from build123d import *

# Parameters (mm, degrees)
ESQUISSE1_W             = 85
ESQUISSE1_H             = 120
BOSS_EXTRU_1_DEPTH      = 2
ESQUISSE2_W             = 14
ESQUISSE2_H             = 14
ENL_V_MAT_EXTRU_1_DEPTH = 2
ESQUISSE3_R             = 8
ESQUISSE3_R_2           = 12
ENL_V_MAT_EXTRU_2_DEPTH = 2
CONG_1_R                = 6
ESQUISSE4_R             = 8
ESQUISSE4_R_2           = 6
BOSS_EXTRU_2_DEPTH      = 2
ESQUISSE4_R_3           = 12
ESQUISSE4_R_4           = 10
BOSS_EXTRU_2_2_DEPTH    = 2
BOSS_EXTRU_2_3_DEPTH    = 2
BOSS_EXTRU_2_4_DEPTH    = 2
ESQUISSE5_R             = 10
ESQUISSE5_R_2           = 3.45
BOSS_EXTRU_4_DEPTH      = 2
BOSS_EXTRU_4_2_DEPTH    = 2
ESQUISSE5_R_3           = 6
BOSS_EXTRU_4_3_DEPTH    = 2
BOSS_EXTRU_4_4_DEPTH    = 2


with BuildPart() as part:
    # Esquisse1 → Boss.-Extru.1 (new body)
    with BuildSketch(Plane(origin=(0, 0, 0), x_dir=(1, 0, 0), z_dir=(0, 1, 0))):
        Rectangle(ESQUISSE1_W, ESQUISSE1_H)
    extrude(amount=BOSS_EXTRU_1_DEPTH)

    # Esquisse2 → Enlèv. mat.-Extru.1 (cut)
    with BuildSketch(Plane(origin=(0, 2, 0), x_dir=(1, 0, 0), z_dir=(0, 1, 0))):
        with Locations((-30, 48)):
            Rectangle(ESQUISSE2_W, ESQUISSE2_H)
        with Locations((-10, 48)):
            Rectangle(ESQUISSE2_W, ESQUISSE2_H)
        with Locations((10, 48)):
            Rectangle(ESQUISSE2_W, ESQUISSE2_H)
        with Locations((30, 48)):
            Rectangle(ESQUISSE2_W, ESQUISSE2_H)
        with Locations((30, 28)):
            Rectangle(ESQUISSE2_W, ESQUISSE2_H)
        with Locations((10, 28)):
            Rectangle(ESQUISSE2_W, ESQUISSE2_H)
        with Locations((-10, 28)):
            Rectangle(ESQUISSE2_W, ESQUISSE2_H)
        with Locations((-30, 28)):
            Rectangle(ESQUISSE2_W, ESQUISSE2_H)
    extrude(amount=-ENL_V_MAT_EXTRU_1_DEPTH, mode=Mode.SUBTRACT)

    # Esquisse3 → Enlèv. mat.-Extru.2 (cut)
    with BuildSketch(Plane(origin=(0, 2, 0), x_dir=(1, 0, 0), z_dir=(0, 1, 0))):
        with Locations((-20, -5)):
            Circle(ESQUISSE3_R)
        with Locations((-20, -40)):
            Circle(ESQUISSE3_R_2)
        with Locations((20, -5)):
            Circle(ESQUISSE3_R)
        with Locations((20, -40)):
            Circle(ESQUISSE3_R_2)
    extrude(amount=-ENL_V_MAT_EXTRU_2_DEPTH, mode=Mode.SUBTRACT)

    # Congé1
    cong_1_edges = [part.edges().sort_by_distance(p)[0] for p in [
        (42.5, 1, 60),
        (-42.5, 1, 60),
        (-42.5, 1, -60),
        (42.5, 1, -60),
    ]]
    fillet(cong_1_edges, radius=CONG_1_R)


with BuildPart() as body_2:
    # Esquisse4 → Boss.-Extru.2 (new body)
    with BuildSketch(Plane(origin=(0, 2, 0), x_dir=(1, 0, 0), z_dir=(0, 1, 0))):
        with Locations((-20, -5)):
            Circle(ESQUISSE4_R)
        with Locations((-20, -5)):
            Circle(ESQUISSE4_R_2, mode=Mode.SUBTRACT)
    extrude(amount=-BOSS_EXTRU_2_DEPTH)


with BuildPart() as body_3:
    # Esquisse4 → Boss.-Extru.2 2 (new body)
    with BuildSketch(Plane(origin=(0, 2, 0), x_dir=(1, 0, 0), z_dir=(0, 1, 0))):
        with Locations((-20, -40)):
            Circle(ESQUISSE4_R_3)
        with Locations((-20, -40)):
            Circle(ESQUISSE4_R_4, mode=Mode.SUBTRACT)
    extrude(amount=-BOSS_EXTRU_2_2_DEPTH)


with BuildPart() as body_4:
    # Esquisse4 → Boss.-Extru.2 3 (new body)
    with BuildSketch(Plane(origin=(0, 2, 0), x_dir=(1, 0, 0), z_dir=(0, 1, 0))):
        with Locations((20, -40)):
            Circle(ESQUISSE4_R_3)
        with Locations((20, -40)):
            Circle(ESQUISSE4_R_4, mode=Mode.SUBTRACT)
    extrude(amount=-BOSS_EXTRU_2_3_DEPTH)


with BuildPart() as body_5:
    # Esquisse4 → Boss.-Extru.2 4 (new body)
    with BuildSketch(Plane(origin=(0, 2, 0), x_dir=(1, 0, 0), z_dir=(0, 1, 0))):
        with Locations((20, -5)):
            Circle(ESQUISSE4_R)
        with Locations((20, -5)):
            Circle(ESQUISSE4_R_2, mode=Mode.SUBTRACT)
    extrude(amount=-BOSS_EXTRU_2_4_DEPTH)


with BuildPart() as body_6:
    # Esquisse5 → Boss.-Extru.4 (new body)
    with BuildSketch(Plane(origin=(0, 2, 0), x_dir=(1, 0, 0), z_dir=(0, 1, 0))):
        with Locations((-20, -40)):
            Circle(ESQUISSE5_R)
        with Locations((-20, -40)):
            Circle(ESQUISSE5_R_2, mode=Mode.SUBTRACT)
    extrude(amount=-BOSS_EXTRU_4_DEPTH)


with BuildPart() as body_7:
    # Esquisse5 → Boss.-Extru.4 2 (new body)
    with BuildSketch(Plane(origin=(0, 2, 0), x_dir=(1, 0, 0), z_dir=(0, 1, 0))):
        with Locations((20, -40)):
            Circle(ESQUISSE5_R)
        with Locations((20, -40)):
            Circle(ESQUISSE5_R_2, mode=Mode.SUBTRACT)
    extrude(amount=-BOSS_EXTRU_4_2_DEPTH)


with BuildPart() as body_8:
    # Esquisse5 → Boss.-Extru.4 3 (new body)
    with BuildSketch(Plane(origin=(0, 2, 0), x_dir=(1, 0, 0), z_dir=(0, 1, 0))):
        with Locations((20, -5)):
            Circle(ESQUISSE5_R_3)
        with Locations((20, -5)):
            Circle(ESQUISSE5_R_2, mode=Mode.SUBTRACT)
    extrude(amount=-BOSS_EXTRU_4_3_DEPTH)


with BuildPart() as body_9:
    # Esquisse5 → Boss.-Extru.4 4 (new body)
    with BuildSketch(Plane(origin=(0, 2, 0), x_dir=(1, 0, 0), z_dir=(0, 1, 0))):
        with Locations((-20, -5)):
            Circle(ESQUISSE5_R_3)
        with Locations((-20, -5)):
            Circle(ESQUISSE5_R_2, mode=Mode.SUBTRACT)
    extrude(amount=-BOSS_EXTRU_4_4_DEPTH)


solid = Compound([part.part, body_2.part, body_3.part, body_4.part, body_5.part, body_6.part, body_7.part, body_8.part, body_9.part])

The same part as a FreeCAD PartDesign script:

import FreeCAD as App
import Part
import Sketcher

V = App.Vector
Q = App.Units.Quantity


def edges_at(feature, points):
    """Names of the edges that pass closest to the given points."""
    edges = feature.Shape.Edges
    near = lambda p: min(range(len(edges)), key=lambda i: edges[i].distToShape(Part.Vertex(*p))[0])
    return sorted({f"Edge{near(p) + 1}" for p in points})

doc = App.newDocument("Part")
params = doc.addObject("Spreadsheet::Sheet", "Params")
for row, (alias, value) in enumerate([
    ("sketch1_width", "85 mm"),
    ("sketch1_height", "120 mm"),
    ("pad1_length", "2 mm"),
    ("sketch2_width", "14 mm"),
    ("pocket1_length", "2 mm"),
    ("sketch3_diameter", "16 mm"),
    ("sketch3_diameter2", "24 mm"),
    ("pocket2_length", "2 mm"),
    ("fillet_radius", "6 mm"),
    ("sketch4_diameter", "16 mm"),
    ("sketch4_diameter2", "12 mm"),
    ("pad2_length", "2 mm"),
    ("sketch5_diameter", "24 mm"),
    ("sketch5_diameter2", "20 mm"),
    ("pad3_length", "2 mm"),
    ("sketch6_diameter", "24 mm"),
    ("sketch6_diameter2", "20 mm"),
    ("pad4_length", "2 mm"),
    ("sketch7_diameter", "16 mm"),
    ("sketch7_diameter2", "12 mm"),
    ("pad5_length", "2 mm"),
    ("sketch8_diameter", "20 mm"),
    ("sketch8_diameter2", "6.9 mm"),
    ("pad6_length", "2 mm"),
    ("sketch9_diameter", "20 mm"),
    ("sketch9_diameter2", "6.9 mm"),
    ("pad7_length", "2 mm"),
    ("sketch10_diameter", "12 mm"),
    ("sketch10_diameter2", "6.9 mm"),
    ("pad8_length", "2 mm"),
    ("sketch11_diameter", "12 mm"),
    ("sketch11_diameter2", "6.9 mm"),
    ("pad9_length", "2 mm"),
], start=1):
    params.set(f"A{row}", alias)
    params.set(f"B{row}", "=" + value)
    params.setAlias(f"B{row}", alias)

body = doc.addObject("PartDesign::Body", "Body")

# Sketch on XZ plane
sketch1 = body.newObject("Sketcher::SketchObject", "Sketch")
sketch1.AttachmentSupport = (doc.getObject("XZ_Plane"), [""])
sketch1.MapMode = "FlatFace"
sketch1.addGeometry([
    Part.LineSegment(V(-42, -60, 0), V(-42, 60, 0)),
    Part.LineSegment(V(-42, 60, 0), V(42, 60, 0)),
    Part.LineSegment(V(42, 60, 0), V(42, -60, 0)),
    Part.LineSegment(V(42, -60, 0), V(-42, -60, 0)),
], False)
sketch1.addConstraint([
    Sketcher.Constraint("Coincident", 0, 2, 1, 1),
    Sketcher.Constraint("Coincident", 1, 2, 2, 1),
    Sketcher.Constraint("Coincident", 2, 2, 3, 1),
    Sketcher.Constraint("Coincident", 3, 2, 0, 1),
    Sketcher.Constraint("Vertical", 0),
    Sketcher.Constraint("Horizontal", 1),
    Sketcher.Constraint("Vertical", 2),
    Sketcher.Constraint("Horizontal", 3),
    Sketcher.Constraint("Symmetric", 0, 2, 2, 2, -1, 1),
    Sketcher.Constraint("DistanceX", 1, 1, 1, 2, Q("85 mm")),
    Sketcher.Constraint("DistanceY", 0, 1, 0, 2, Q("120 mm")),
])
sketch1.setExpression("Constraints[9]", "Params.sketch1_width")
sketch1.setExpression("Constraints[10]", "Params.sketch1_height")
pad1 = body.newObject("PartDesign::Pad", "Pad")
pad1.Profile = sketch1
pad1.setExpression("Length", "Params.pad1_length")
pad1.Reversed = True

# Sketch on XZ plane
sketch2 = body.newObject("Sketcher::SketchObject", "Sketch001")
sketch2.AttachmentSupport = (doc.getObject("XZ_Plane"), [""])
sketch2.MapMode = "FlatFace"
sketch2.AttachmentOffset = App.Placement(V(0, 0, -2), App.Rotation())
sketch2.addGeometry([
    Part.LineSegment(V(-37, -55, 0), V(-37, -41, 0)),  # 0
    Part.LineSegment(V(-37, -41, 0), V(-23, -41, 0)),  # 1
    Part.LineSegment(V(-23, -41, 0), V(-23, -55, 0)),  # 2
    Part.LineSegment(V(-23, -55, 0), V(-37, -55, 0)),  # 3
    Part.LineSegment(V(-17, -55, 0), V(-17, -41, 0)),  # 4
    Part.LineSegment(V(-17, -41, 0), V(-3, -41, 0)),  # 5
    Part.LineSegment(V(-3, -41, 0), V(-3, -55, 0)),  # 6
    Part.LineSegment(V(-3, -55, 0), V(-17, -55, 0)),  # 7
    Part.LineSegment(V(3, -55, 0), V(3, -41, 0)),  # 8
    Part.LineSegment(V(3, -41, 0), V(17, -41, 0)),  # 9
    Part.LineSegment(V(17, -41, 0), V(17, -55, 0)),  # 10
    Part.LineSegment(V(17, -55, 0), V(3, -55, 0)),  # 11
    Part.LineSegment(V(23, -55, 0), V(23, -41, 0)),  # 12
    Part.LineSegment(V(23, -41, 0), V(37, -41, 0)),  # 13
    Part.LineSegment(V(37, -41, 0), V(37, -55, 0)),  # 14
    Part.LineSegment(V(37, -55, 0), V(23, -55, 0)),  # 15
    Part.LineSegment(V(23, -35, 0), V(23, -21, 0)),  # 16
    Part.LineSegment(V(23, -21, 0), V(37, -21, 0)),  # 17
    Part.LineSegment(V(37, -21, 0), V(37, -35, 0)),  # 18
    Part.LineSegment(V(37, -35, 0), V(23, -35, 0)),  # 19
    Part.LineSegment(V(3, -35, 0), V(3, -21, 0)),  # 20
    Part.LineSegment(V(3, -21, 0), V(17, -21, 0)),  # 21
    Part.LineSegment(V(17, -21, 0), V(17, -35, 0)),  # 22
    Part.LineSegment(V(17, -35, 0), V(3, -35, 0)),  # 23
    Part.LineSegment(V(-17, -35, 0), V(-17, -21, 0)),  # 24
    Part.LineSegment(V(-17, -21, 0), V(-3, -21, 0)),  # 25
    Part.LineSegment(V(-3, -21, 0), V(-3, -35, 0)),  # 26
    Part.LineSegment(V(-3, -35, 0), V(-17, -35, 0)),  # 27
    Part.LineSegment(V(-37, -35, 0), V(-37, -21, 0)),  # 28
    Part.LineSegment(V(-37, -21, 0), V(-23, -21, 0)),  # 29
    Part.LineSegment(V(-23, -21, 0), V(-23, -35, 0)),  # 30
    Part.LineSegment(V(-23, -35, 0), V(-37, -35, 0)),  # 31
], False)
sketch2.addConstraint([
    Sketcher.Constraint("Coincident", 0, 2, 1, 1),
    Sketcher.Constraint("Coincident", 1, 2, 2, 1),
    Sketcher.Constraint("Coincident", 2, 2, 3, 1),
    Sketcher.Constraint("Coincident", 3, 2, 0, 1),
    Sketcher.Constraint("Coincident", 4, 2, 5, 1),
    Sketcher.Constraint("Coincident", 5, 2, 6, 1),
    Sketcher.Constraint("Coincident", 6, 2, 7, 1),
    Sketcher.Constraint("Coincident", 7, 2, 4, 1),
    Sketcher.Constraint("Coincident", 8, 2, 9, 1),
    Sketcher.Constraint("Coincident", 9, 2, 10, 1),
    Sketcher.Constraint("Coincident", 10, 2, 11, 1),
    Sketcher.Constraint("Coincident", 11, 2, 8, 1),
    Sketcher.Constraint("Coincident", 12, 2, 13, 1),
    Sketcher.Constraint("Coincident", 13, 2, 14, 1),
    Sketcher.Constraint("Coincident", 14, 2, 15, 1),
    Sketcher.Constraint("Coincident", 15, 2, 12, 1),
    Sketcher.Constraint("Coincident", 16, 2, 17, 1),
    Sketcher.Constraint("Coincident", 17, 2, 18, 1),
    Sketcher.Constraint("Coincident", 18, 2, 19, 1),
    Sketcher.Constraint("Coincident", 19, 2, 16, 1),
    Sketcher.Constraint("Coincident", 20, 2, 21, 1),
    Sketcher.Constraint("Coincident", 21, 2, 22, 1),
    Sketcher.Constraint("Coincident", 22, 2, 23, 1),
    Sketcher.Constraint("Coincident", 23, 2, 20, 1),
    Sketcher.Constraint("Coincident", 24, 2, 25, 1),
    Sketcher.Constraint("Coincident", 25, 2, 26, 1),
    Sketcher.Constraint("Coincident", 26, 2, 27, 1),
    Sketcher.Constraint("Coincident", 27, 2, 24, 1),
    Sketcher.Constraint("Coincident", 28, 2, 29, 1),
    Sketcher.Constraint("Coincident", 29, 2, 30, 1),
    Sketcher.Constraint("Coincident", 30, 2, 31, 1),
    Sketcher.Constraint("Coincident", 31, 2, 28, 1),
    Sketcher.Constraint("Vertical", 0),
    Sketcher.Constraint("Horizontal", 1),
    Sketcher.Constraint("Vertical", 2),
    Sketcher.Constraint("Horizontal", 3),
    Sketcher.Constraint("Vertical", 4),
    Sketcher.Constraint("Horizontal", 5),
    Sketcher.Constraint("Vertical", 6),
    Sketcher.Constraint("Horizontal", 7),
    Sketcher.Constraint("Vertical", 8),
    Sketcher.Constraint("Horizontal", 9),
    Sketcher.Constraint("Vertical", 10),
    Sketcher.Constraint("Horizontal", 11),
    Sketcher.Constraint("Vertical", 12),
    Sketcher.Constraint("Horizontal", 13),
    Sketcher.Constraint("Vertical", 14),
    Sketcher.Constraint("Horizontal", 15),
    Sketcher.Constraint("Vertical", 16),
    Sketcher.Constraint("Horizontal", 17),
    Sketcher.Constraint("Vertical", 18),
    Sketcher.Constraint("Horizontal", 19),
    Sketcher.Constraint("Vertical", 20),
    Sketcher.Constraint("Horizontal", 21),
    Sketcher.Constraint("Vertical", 22),
    Sketcher.Constraint("Horizontal", 23),
    Sketcher.Constraint("Vertical", 24),
    Sketcher.Constraint("Horizontal", 25),
    Sketcher.Constraint("Vertical", 26),
    Sketcher.Constraint("Horizontal", 27),
    Sketcher.Constraint("Vertical", 28),
    Sketcher.Constraint("Horizontal", 29),
    Sketcher.Constraint("Vertical", 30),
    Sketcher.Constraint("Horizontal", 31),
    Sketcher.Constraint("Symmetric", 5, 2, 8, 2, -2),
    Sketcher.Constraint("Symmetric", 7, 2, 10, 2, -2),
    Sketcher.Constraint("Symmetric", 1, 2, 12, 2, -2),
    Sketcher.Constraint("Symmetric", 3, 2, 14, 2, -2),
    Sketcher.Constraint("Symmetric", 21, 2, 24, 2, -2),
    Sketcher.Constraint("Symmetric", 23, 2, 26, 2, -2),
    Sketcher.Constraint("Symmetric", 17, 2, 28, 2, -2),
    Sketcher.Constraint("Symmetric", 19, 2, 30, 2, -2),
    Sketcher.Constraint("Horizontal", 1, 2, 4, 2),
    Sketcher.Constraint("Horizontal", 3, 2, 6, 2),
    Sketcher.Constraint("Horizontal", 17, 2, 20, 2),
    Sketcher.Constraint("Horizontal", 19, 2, 22, 2),
    Sketcher.Constraint("Vertical", 15, 2, 16, 2),
    Sketcher.Constraint("Vertical", 14, 2, 17, 2),
    Sketcher.Constraint("Vertical", 11, 2, 20, 2),
    Sketcher.Constraint("Vertical", 10, 2, 21, 2),
    Sketcher.Constraint("Equal", 3, 5),
    Sketcher.Constraint("Equal", 31, 0),
    Sketcher.Constraint("Equal", 14, 16),
    Sketcher.Constraint("DistanceX", 1, 1, 1, 2, Q("14 mm")),
    Sketcher.Constraint("DistanceX", 0, 2, -1, 1, Q("37 mm")),
    Sketcher.Constraint("DistanceY", 0, 2, -1, 1, Q("41 mm")),
    Sketcher.Constraint("DistanceX", 4, 2, -1, 1, Q("17 mm")),
    Sketcher.Constraint("DistanceY", 16, 2, -1, 1, Q("21 mm")),
])
sketch2.setExpression("Constraints[83]", "Params.sketch2_width")
pocket1 = body.newObject("PartDesign::Pocket", "Pocket")
pocket1.Profile = sketch2
pocket1.setExpression("Length", "Params.pocket1_length")
pocket1.Reversed = True

# Sketch on XZ plane
sketch3 = body.newObject("Sketcher::SketchObject", "Sketch002")
sketch3.AttachmentSupport = (doc.getObject("XZ_Plane"), [""])
sketch3.MapMode = "FlatFace"
sketch3.AttachmentOffset = App.Placement(V(0, 0, -2), App.Rotation())
sketch3.addGeometry([
    Part.Circle(V(-20, 5, 0), V(0, 0, 1), 8),
    Part.Circle(V(-20, 40, 0), V(0, 0, 1), 12),
    Part.Circle(V(20, 5, 0), V(0, 0, 1), 8),
    Part.Circle(V(20, 40, 0), V(0, 0, 1), 12),
], False)
sketch3.addConstraint([
    Sketcher.Constraint("Equal", 0, 2),
    Sketcher.Constraint("Equal", 1, 3),
    Sketcher.Constraint("Symmetric", 0, 3, 2, 3, -2),
    Sketcher.Constraint("Symmetric", 1, 3, 3, 3, -2),
    Sketcher.Constraint("Vertical", 0, 3, 1, 3),
    Sketcher.Constraint("Diameter", 0, Q("16 mm")),
    Sketcher.Constraint("Diameter", 1, Q("24 mm")),
    Sketcher.Constraint("DistanceX", 0, 3, -1, 1, Q("20 mm")),
    Sketcher.Constraint("DistanceY", -1, 1, 0, 3, Q("5 mm")),
    Sketcher.Constraint("DistanceY", -1, 1, 1, 3, Q("40 mm")),
])
sketch3.setExpression("Constraints[5]", "Params.sketch3_diameter")
sketch3.setExpression("Constraints[6]", "Params.sketch3_diameter2")
pocket2 = body.newObject("PartDesign::Pocket", "Pocket001")
pocket2.Profile = sketch3
pocket2.setExpression("Length", "Params.pocket2_length")
pocket2.Reversed = True
doc.recompute()

fillet = body.newObject("PartDesign::Fillet", "Fillet")
fillet.Base = (pocket2, edges_at(pocket2, [
    (42.5, 1, 60),
    (-42.5, 1, 60),
    (-42.5, 1, -60),
    (42.5, 1, -60),
]))
fillet.setExpression("Radius", "Params.fillet_radius")
body2 = doc.addObject("PartDesign::Body", "Body001")

# Sketch on XZ plane
sketch4 = body2.newObject("Sketcher::SketchObject", "Sketch003")
sketch4.AttachmentSupport = (doc.getObject("XZ_Plane001"), [""])
sketch4.MapMode = "FlatFace"
sketch4.AttachmentOffset = App.Placement(V(0, 0, -2), App.Rotation())
sketch4.addGeometry([
    Part.Circle(V(-20, 5, 0), V(0, 0, 1), 8),
    Part.Circle(V(-20, 5, 0), V(0, 0, 1), 6),
], False)
sketch4.addConstraint([
    Sketcher.Constraint("Coincident", 1, 3, 0, 3),
    Sketcher.Constraint("Diameter", 0, Q("16 mm")),
    Sketcher.Constraint("Diameter", 1, Q("12 mm")),
    Sketcher.Constraint("DistanceX", 0, 3, -1, 1, Q("20 mm")),
    Sketcher.Constraint("DistanceY", -1, 1, 0, 3, Q("5 mm")),
])
sketch4.setExpression("Constraints[1]", "Params.sketch4_diameter")
sketch4.setExpression("Constraints[2]", "Params.sketch4_diameter2")
pad2 = body2.newObject("PartDesign::Pad", "Pad001")
pad2.Profile = sketch4
pad2.setExpression("Length", "Params.pad2_length")
body3 = doc.addObject("PartDesign::Body", "Body002")

# Sketch on XZ plane
sketch5 = body3.newObject("Sketcher::SketchObject", "Sketch004")
sketch5.AttachmentSupport = (doc.getObject("XZ_Plane002"), [""])
sketch5.MapMode = "FlatFace"
sketch5.AttachmentOffset = App.Placement(V(0, 0, -2), App.Rotation())
sketch5.addGeometry([
    Part.Circle(V(-20, 40, 0), V(0, 0, 1), 12),
    Part.Circle(V(-20, 40, 0), V(0, 0, 1), 10),
], False)
sketch5.addConstraint([
    Sketcher.Constraint("Coincident", 1, 3, 0, 3),
    Sketcher.Constraint("Diameter", 0, Q("24 mm")),
    Sketcher.Constraint("Diameter", 1, Q("20 mm")),
    Sketcher.Constraint("DistanceX", 0, 3, -1, 1, Q("20 mm")),
    Sketcher.Constraint("DistanceY", -1, 1, 0, 3, Q("40 mm")),
])
sketch5.setExpression("Constraints[1]", "Params.sketch5_diameter")
sketch5.setExpression("Constraints[2]", "Params.sketch5_diameter2")
pad3 = body3.newObject("PartDesign::Pad", "Pad002")
pad3.Profile = sketch5
pad3.setExpression("Length", "Params.pad3_length")
body4 = doc.addObject("PartDesign::Body", "Body003")

# Sketch on XZ plane
sketch6 = body4.newObject("Sketcher::SketchObject", "Sketch005")
sketch6.AttachmentSupport = (doc.getObject("XZ_Plane003"), [""])
sketch6.MapMode = "FlatFace"
sketch6.AttachmentOffset = App.Placement(V(0, 0, -2), App.Rotation())
sketch6.addGeometry([
    Part.Circle(V(20, 40, 0), V(0, 0, 1), 12),
    Part.Circle(V(20, 40, 0), V(0, 0, 1), 10),
], False)
sketch6.addConstraint([
    Sketcher.Constraint("Coincident", 1, 3, 0, 3),
    Sketcher.Constraint("Diameter", 0, Q("24 mm")),
    Sketcher.Constraint("Diameter", 1, Q("20 mm")),
    Sketcher.Constraint("DistanceX", -1, 1, 0, 3, Q("20 mm")),
    Sketcher.Constraint("DistanceY", -1, 1, 0, 3, Q("40 mm")),
])
sketch6.setExpression("Constraints[1]", "Params.sketch6_diameter")
sketch6.setExpression("Constraints[2]", "Params.sketch6_diameter2")
pad4 = body4.newObject("PartDesign::Pad", "Pad003")
pad4.Profile = sketch6
pad4.setExpression("Length", "Params.pad4_length")
body5 = doc.addObject("PartDesign::Body", "Body004")

# Sketch on XZ plane
sketch7 = body5.newObject("Sketcher::SketchObject", "Sketch006")
sketch7.AttachmentSupport = (doc.getObject("XZ_Plane004"), [""])
sketch7.MapMode = "FlatFace"
sketch7.AttachmentOffset = App.Placement(V(0, 0, -2), App.Rotation())
sketch7.addGeometry([
    Part.Circle(V(20, 5, 0), V(0, 0, 1), 8),
    Part.Circle(V(20, 5, 0), V(0, 0, 1), 6),
], False)
sketch7.addConstraint([
    Sketcher.Constraint("Coincident", 1, 3, 0, 3),
    Sketcher.Constraint("Diameter", 0, Q("16 mm")),
    Sketcher.Constraint("Diameter", 1, Q("12 mm")),
    Sketcher.Constraint("DistanceX", -1, 1, 0, 3, Q("20 mm")),
    Sketcher.Constraint("DistanceY", -1, 1, 0, 3, Q("5 mm")),
])
sketch7.setExpression("Constraints[1]", "Params.sketch7_diameter")
sketch7.setExpression("Constraints[2]", "Params.sketch7_diameter2")
pad5 = body5.newObject("PartDesign::Pad", "Pad004")
pad5.Profile = sketch7
pad5.setExpression("Length", "Params.pad5_length")
body6 = doc.addObject("PartDesign::Body", "Body005")

# Sketch on XZ plane
sketch8 = body6.newObject("Sketcher::SketchObject", "Sketch007")
sketch8.AttachmentSupport = (doc.getObject("XZ_Plane005"), [""])
sketch8.MapMode = "FlatFace"
sketch8.AttachmentOffset = App.Placement(V(0, 0, -2), App.Rotation())
sketch8.addGeometry([
    Part.Circle(V(-20, 40, 0), V(0, 0, 1), 10),
    Part.Circle(V(-20, 40, 0), V(0, 0, 1), 3.5),
], False)
sketch8.addConstraint([
    Sketcher.Constraint("Coincident", 1, 3, 0, 3),
    Sketcher.Constraint("Diameter", 0, Q("20 mm")),
    Sketcher.Constraint("Diameter", 1, Q("6.9 mm")),
    Sketcher.Constraint("DistanceX", 0, 3, -1, 1, Q("20 mm")),
    Sketcher.Constraint("DistanceY", -1, 1, 0, 3, Q("40 mm")),
])
sketch8.setExpression("Constraints[1]", "Params.sketch8_diameter")
sketch8.setExpression("Constraints[2]", "Params.sketch8_diameter2")
pad6 = body6.newObject("PartDesign::Pad", "Pad005")
pad6.Profile = sketch8
pad6.setExpression("Length", "Params.pad6_length")
body7 = doc.addObject("PartDesign::Body", "Body006")

# Sketch on XZ plane
sketch9 = body7.newObject("Sketcher::SketchObject", "Sketch008")
sketch9.AttachmentSupport = (doc.getObject("XZ_Plane006"), [""])
sketch9.MapMode = "FlatFace"
sketch9.AttachmentOffset = App.Placement(V(0, 0, -2), App.Rotation())
sketch9.addGeometry([
    Part.Circle(V(20, 40, 0), V(0, 0, 1), 10),
    Part.Circle(V(20, 40, 0), V(0, 0, 1), 3.5),
], False)
sketch9.addConstraint([
    Sketcher.Constraint("Coincident", 1, 3, 0, 3),
    Sketcher.Constraint("Diameter", 0, Q("20 mm")),
    Sketcher.Constraint("Diameter", 1, Q("6.9 mm")),
    Sketcher.Constraint("DistanceX", -1, 1, 0, 3, Q("20 mm")),
    Sketcher.Constraint("DistanceY", -1, 1, 0, 3, Q("40 mm")),
])
sketch9.setExpression("Constraints[1]", "Params.sketch9_diameter")
sketch9.setExpression("Constraints[2]", "Params.sketch9_diameter2")
pad7 = body7.newObject("PartDesign::Pad", "Pad006")
pad7.Profile = sketch9
pad7.setExpression("Length", "Params.pad7_length")
body8 = doc.addObject("PartDesign::Body", "Body007")

# Sketch on XZ plane
sketch10 = body8.newObject("Sketcher::SketchObject", "Sketch009")
sketch10.AttachmentSupport = (doc.getObject("XZ_Plane007"), [""])
sketch10.MapMode = "FlatFace"
sketch10.AttachmentOffset = App.Placement(V(0, 0, -2), App.Rotation())
sketch10.addGeometry([
    Part.Circle(V(20, 5, 0), V(0, 0, 1), 6),
    Part.Circle(V(20, 5, 0), V(0, 0, 1), 3.5),
], False)
sketch10.addConstraint([
    Sketcher.Constraint("Coincident", 1, 3, 0, 3),
    Sketcher.Constraint("Diameter", 0, Q("12 mm")),
    Sketcher.Constraint("Diameter", 1, Q("6.9 mm")),
    Sketcher.Constraint("DistanceX", -1, 1, 0, 3, Q("20 mm")),
    Sketcher.Constraint("DistanceY", -1, 1, 0, 3, Q("5 mm")),
])
sketch10.setExpression("Constraints[1]", "Params.sketch10_diameter")
sketch10.setExpression("Constraints[2]", "Params.sketch10_diameter2")
pad8 = body8.newObject("PartDesign::Pad", "Pad007")
pad8.Profile = sketch10
pad8.setExpression("Length", "Params.pad8_length")
body9 = doc.addObject("PartDesign::Body", "Body008")

# Sketch on XZ plane
sketch11 = body9.newObject("Sketcher::SketchObject", "Sketch010")
sketch11.AttachmentSupport = (doc.getObject("XZ_Plane008"), [""])
sketch11.MapMode = "FlatFace"
sketch11.AttachmentOffset = App.Placement(V(0, 0, -2), App.Rotation())
sketch11.addGeometry([
    Part.Circle(V(-20, 5, 0), V(0, 0, 1), 6),
    Part.Circle(V(-20, 5, 0), V(0, 0, 1), 3.5),
], False)
sketch11.addConstraint([
    Sketcher.Constraint("Coincident", 1, 3, 0, 3),
    Sketcher.Constraint("Diameter", 0, Q("12 mm")),
    Sketcher.Constraint("Diameter", 1, Q("6.9 mm")),
    Sketcher.Constraint("DistanceX", 0, 3, -1, 1, Q("20 mm")),
    Sketcher.Constraint("DistanceY", -1, 1, 0, 3, Q("5 mm")),
])
sketch11.setExpression("Constraints[1]", "Params.sketch11_diameter")
sketch11.setExpression("Constraints[2]", "Params.sketch11_diameter2")
pad9 = body9.newObject("PartDesign::Pad", "Pad008")
pad9.Profile = sketch11
pad9.setExpression("Length", "Params.pad9_length")

doc.recompute()
